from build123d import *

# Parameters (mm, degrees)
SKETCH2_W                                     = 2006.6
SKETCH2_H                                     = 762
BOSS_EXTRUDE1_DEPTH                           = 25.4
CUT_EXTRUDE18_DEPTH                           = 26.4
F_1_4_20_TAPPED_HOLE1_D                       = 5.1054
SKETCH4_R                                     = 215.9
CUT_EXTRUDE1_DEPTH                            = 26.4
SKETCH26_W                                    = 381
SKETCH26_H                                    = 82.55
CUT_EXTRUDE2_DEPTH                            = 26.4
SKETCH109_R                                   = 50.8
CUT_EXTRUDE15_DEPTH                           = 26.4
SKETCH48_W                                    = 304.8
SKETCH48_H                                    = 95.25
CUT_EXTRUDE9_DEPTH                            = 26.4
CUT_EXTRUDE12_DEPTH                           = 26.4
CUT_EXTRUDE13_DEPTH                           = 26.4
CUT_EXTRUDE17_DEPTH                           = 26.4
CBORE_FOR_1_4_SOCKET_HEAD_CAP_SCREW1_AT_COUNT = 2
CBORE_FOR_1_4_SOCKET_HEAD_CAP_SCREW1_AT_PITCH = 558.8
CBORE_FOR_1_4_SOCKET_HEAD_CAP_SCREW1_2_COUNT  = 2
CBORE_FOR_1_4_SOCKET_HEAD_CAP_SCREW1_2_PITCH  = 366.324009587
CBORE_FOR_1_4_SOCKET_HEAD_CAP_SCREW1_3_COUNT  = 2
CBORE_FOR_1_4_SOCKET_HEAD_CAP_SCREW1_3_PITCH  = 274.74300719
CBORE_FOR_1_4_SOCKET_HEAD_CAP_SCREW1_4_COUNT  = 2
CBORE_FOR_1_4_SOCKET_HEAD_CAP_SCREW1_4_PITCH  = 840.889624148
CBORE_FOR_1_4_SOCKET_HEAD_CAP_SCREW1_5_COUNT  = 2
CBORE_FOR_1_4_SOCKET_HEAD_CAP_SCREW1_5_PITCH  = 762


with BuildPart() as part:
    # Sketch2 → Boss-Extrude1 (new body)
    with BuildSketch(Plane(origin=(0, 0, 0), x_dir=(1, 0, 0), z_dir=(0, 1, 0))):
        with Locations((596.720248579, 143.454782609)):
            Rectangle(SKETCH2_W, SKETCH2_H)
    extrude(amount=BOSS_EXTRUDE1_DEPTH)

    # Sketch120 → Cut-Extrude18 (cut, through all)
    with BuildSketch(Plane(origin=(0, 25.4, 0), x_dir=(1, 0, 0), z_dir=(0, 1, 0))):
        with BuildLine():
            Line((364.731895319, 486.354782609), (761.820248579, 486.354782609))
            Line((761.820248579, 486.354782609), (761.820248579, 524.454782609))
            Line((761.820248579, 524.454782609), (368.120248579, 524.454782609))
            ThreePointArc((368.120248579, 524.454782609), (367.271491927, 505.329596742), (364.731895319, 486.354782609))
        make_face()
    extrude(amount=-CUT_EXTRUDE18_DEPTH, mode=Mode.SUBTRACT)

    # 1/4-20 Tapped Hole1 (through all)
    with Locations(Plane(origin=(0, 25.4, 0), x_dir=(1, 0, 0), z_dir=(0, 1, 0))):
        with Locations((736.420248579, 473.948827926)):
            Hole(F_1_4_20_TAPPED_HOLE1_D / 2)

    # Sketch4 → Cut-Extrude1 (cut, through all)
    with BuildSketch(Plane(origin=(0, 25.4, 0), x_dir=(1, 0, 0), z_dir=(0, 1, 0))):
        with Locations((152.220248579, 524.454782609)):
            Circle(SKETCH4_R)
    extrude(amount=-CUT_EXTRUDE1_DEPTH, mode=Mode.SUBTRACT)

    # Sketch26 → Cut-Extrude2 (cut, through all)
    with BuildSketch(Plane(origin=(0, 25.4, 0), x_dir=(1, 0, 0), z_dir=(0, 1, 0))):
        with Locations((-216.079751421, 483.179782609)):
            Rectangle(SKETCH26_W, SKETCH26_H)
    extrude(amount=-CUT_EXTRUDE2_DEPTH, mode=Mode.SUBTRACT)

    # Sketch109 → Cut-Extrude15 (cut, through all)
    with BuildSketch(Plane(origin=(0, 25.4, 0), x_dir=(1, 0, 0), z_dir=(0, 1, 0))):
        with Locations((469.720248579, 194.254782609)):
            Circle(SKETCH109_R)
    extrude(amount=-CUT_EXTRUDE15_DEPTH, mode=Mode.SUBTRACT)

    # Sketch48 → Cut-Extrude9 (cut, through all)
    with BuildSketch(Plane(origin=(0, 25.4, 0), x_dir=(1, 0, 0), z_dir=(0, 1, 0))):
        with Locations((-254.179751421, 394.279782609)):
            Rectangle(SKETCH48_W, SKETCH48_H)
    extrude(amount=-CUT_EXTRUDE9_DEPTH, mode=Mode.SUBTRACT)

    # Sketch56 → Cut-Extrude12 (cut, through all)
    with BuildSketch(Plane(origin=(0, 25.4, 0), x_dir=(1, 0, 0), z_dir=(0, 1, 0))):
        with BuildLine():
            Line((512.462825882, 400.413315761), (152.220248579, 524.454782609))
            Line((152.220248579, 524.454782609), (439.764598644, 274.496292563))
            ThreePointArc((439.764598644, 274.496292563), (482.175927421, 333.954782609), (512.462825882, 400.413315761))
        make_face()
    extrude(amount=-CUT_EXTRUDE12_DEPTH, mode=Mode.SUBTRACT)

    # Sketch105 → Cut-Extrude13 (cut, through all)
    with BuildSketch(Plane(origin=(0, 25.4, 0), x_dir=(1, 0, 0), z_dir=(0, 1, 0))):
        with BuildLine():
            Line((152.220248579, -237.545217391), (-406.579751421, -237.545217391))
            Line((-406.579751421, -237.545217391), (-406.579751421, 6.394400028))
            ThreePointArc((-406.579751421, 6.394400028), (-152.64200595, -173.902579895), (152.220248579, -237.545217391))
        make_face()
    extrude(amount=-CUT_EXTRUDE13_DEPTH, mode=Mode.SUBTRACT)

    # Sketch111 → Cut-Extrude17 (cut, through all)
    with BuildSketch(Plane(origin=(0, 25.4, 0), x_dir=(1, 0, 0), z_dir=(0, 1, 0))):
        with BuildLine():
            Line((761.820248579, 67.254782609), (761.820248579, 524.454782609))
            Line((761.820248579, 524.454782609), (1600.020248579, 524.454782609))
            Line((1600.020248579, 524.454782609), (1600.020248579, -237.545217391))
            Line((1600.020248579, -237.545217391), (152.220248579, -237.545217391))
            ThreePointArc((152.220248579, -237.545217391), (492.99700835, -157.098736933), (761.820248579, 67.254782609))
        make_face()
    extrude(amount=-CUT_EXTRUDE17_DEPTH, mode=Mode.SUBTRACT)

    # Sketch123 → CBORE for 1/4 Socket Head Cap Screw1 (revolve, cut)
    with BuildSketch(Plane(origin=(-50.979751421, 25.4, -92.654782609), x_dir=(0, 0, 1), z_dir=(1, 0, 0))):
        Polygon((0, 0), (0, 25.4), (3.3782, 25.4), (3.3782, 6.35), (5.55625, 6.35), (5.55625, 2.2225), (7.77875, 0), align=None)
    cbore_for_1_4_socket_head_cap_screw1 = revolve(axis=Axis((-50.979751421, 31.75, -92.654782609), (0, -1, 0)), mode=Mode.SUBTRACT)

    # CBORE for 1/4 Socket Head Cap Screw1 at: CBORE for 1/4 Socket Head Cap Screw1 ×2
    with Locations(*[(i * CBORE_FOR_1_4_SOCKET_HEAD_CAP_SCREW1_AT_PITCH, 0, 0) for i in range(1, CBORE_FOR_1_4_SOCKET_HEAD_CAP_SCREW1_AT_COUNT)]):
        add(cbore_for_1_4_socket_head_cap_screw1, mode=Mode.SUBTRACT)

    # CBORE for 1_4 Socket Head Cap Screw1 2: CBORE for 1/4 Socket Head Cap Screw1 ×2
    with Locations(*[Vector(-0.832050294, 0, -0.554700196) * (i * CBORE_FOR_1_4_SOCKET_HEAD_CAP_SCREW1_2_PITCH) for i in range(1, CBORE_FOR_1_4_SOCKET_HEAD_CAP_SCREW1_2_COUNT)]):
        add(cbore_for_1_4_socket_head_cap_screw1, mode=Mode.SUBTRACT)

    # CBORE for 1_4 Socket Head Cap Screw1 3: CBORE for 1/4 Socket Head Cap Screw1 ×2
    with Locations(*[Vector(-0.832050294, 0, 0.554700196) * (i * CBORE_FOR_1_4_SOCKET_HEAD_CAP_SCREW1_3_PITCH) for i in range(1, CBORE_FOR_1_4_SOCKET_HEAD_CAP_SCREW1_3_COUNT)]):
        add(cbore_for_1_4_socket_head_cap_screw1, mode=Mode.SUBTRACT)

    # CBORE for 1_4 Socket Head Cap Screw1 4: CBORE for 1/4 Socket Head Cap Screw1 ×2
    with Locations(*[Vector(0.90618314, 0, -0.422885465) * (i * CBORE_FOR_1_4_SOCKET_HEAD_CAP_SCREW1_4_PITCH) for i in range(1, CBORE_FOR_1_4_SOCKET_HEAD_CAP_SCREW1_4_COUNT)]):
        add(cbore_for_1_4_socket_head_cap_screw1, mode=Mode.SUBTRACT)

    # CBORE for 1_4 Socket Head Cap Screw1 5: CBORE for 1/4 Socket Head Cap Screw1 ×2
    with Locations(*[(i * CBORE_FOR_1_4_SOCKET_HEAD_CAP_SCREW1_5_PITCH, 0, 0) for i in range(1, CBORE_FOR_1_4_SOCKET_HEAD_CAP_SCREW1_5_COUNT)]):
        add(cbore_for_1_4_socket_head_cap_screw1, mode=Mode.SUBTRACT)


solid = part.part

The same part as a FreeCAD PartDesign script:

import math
import FreeCAD as App
import Part
import Sketcher

V = App.Vector
Q = App.Units.Quantity

doc = App.newDocument("Part")
body = doc.addObject("PartDesign::Body", "Body")

# Sketch on XZ plane
sketch1 = body.newObject("Sketcher::SketchObject", "Sketch")
sketch1.AttachmentSupport = (doc.getObject("XZ_Plane"), [""])
sketch1.MapMode = "FlatFace"
sketch1.addGeometry([
    Part.LineSegment(V(-406.579751, -524.454783, 0), V(-406.579751, 237.545217, 0)),
    Part.LineSegment(V(-406.579751, 237.545217, 0), V(1600.020249, 237.545217, 0)),
    Part.LineSegment(V(1600.020249, 237.545217, 0), V(1600.020249, -524.454783, 0)),
    Part.LineSegment(V(1600.020249, -524.454783, 0), V(-406.579751, -524.454783, 0)),
], False)
sketch1.addConstraint([
    Sketcher.Constraint("Coincident", 0, 2, 1, 1),
    Sketcher.Constraint("Coincident", 1, 2, 2, 1),
    Sketcher.Constraint("Coincident", 2, 2, 3, 1),
    Sketcher.Constraint("Coincident", 3, 2, 0, 1),
    Sketcher.Constraint("Vertical", 0),
    Sketcher.Constraint("Horizontal", 1),
    Sketcher.Constraint("Vertical", 2),
    Sketcher.Constraint("Horizontal", 3),
    Sketcher.Constraint("DistanceX", 1, 1, 1, 2, Q("79 in")),
    Sketcher.Constraint("DistanceY", 0, 1, 0, 2, Q("30 in")),
    Sketcher.Constraint("DistanceX", 0, 2, -1, 1, Q("406.579751 mm")),
    Sketcher.Constraint("DistanceY", -1, 1, 0, 2, Q("237.545217 mm")),
])
pad1 = body.newObject("PartDesign::Pad", "Pad")
pad1.Profile = sketch1
pad1.Length = Q("1 in")
pad1.Reversed = True

# Sketch on XZ plane
sketch2 = body.newObject("Sketcher::SketchObject", "Sketch001")
sketch2.AttachmentSupport = (doc.getObject("XZ_Plane"), [""])
sketch2.MapMode = "FlatFace"
sketch2.AttachmentOffset = App.Placement(V(0, 0, -1 * 25.4), App.Rotation())
sketch2.addGeometry([
    Part.LineSegment(V(364.731895, -486.354783, 0), V(761.820249, -486.354783, 0)),
    Part.LineSegment(V(761.820249, -486.354783, 0), V(761.820249, -524.454783, 0)),
    Part.LineSegment(V(761.820249, -524.454783, 0), V(368.120249, -524.454783, 0)),
    Part.ArcOfCircle(Part.Circle(V(152.220249, -524.454783, 0), V(0, 0, 1), 215.9), math.radians(0), math.radians(10.164249)),
], False)
sketch2.addConstraint([
    Sketcher.Constraint("Coincident", 0, 2, 1, 1),
    Sketcher.Constraint("Coincident", 1, 2, 2, 1),
    Sketcher.Constraint("Coincident", 2, 2, 3, 1),
    Sketcher.Constraint("Coincident", 3, 2, 0, 1),
    Sketcher.Constraint("Horizontal", 0),
    Sketcher.Constraint("Vertical", 1),
    Sketcher.Constraint("Horizontal", 2),
    Sketcher.Constraint("Horizontal", 3, 3, 1, 2),
    Sketcher.Constraint("Radius", 3, Q("8.5 in")),
    Sketcher.Constraint("DistanceX", 2, 2, 2, 1, Q("15.5 in")),
    Sketcher.Constraint("DistanceY", 1, 2, 1, 1, Q("1.5 in")),
    Sketcher.Constraint("DistanceX", -1, 1, 3, 3, Q("152.220249 mm")),
    Sketcher.Constraint("DistanceY", 3, 3, -1, 1, Q("524.454783 mm")),
])
pocket1 = body.newObject("PartDesign::Pocket", "Pocket")
pocket1.Profile = sketch2
pocket1.Type = "ThroughAll"
pocket1.Reversed = True

# Sketch on XZ plane
sketch3 = body.newObject("Sketcher::SketchObject", "Sketch002")
sketch3.AttachmentSupport = (doc.getObject("XZ_Plane"), [""])
sketch3.MapMode = "FlatFace"
sketch3.AttachmentOffset = App.Placement(V(0, 0, -1 * 25.4), App.Rotation())
sketch3.addGeometry(Part.Circle(V(736.420249, -473.948828, 0), V(0, 0, 1), 2.5527), False)
sketch3.addConstraint([
    Sketcher.Constraint("Diameter", 0, Q("0.201 in")),
    Sketcher.Constraint("DistanceX", -1, 1, 0, 3, Q("736.420249 mm")),
    Sketcher.Constraint("DistanceY", 0, 3, -1, 1, Q("473.948828 mm")),
])
doc.recompute()
hole = body.newObject("PartDesign::Hole", "Hole")
hole.Profile = sketch3
hole.ThreadType = "None"
hole.Diameter = Q("0.201 in")
hole.DepthType = "ThroughAll"
hole.Reversed = True

# Sketch on XZ plane
sketch4 = body.newObject("Sketcher::SketchObject", "Sketch003")
sketch4.AttachmentSupport = (doc.getObject("XZ_Plane"), [""])
sketch4.MapMode = "FlatFace"
sketch4.AttachmentOffset = App.Placement(V(0, 0, -1 * 25.4), App.Rotation())
sketch4.addGeometry(Part.Circle(V(152.220249, -524.454783, 0), V(0, 0, 1), 215.9), False)
sketch4.addConstraint([
    Sketcher.Constraint("Diameter", 0, Q("17 in")),
    Sketcher.Constraint("DistanceX", -1, 1, 0, 3, Q("152.220249 mm")),
    Sketcher.Constraint("DistanceY", 0, 3, -1, 1, Q("524.454783 mm")),
])
pocket2 = body.newObject("PartDesign::Pocket", "Pocket001")
pocket2.Profile = sketch4
pocket2.Type = "ThroughAll"
pocket2.Reversed = True

# Sketch on XZ plane
sketch5 = body.newObject("Sketcher::SketchObject", "Sketch004")
sketch5.AttachmentSupport = (doc.getObject("XZ_Plane"), [""])
sketch5.MapMode = "FlatFace"
sketch5.AttachmentOffset = App.Placement(V(0, 0, -1 * 25.4), App.Rotation())
sketch5.addGeometry([
    Part.LineSegment(V(-406.579751, -524.454783, 0), V(-406.579751, -441.904783, 0)),
    Part.LineSegment(V(-406.579751, -441.904783, 0), V(-25.579751, -441.904783, 0)),
    Part.LineSegment(V(-25.579751, -441.904783, 0), V(-25.579751, -524.454783, 0)),
    Part.LineSegment(V(-25.579751, -524.454783, 0), V(-406.579751, -524.454783, 0)),
], False)
sketch5.addConstraint([
    Sketcher.Constraint("Coincident", 0, 2, 1, 1),
    Sketcher.Constraint("Coincident", 1, 2, 2, 1),
    Sketcher.Constraint("Coincident", 2, 2, 3, 1),
    Sketcher.Constraint("Coincident", 3, 2, 0, 1),
    Sketcher.Constraint("Vertical", 0),
    Sketcher.Constraint("Horizontal", 1),
    Sketcher.Constraint("Vertical", 2),
    Sketcher.Constraint("Horizontal", 3),
    Sketcher.Constraint("DistanceX", 1, 1, 1, 2, Q("15 in")),
    Sketcher.Constraint("DistanceY", 0, 1, 0, 2, Q("3.25 in")),
    Sketcher.Constraint("DistanceX", 0, 2, -1, 1, Q("406.579751 mm")),
    Sketcher.Constraint("DistanceY", 0, 2, -1, 1, Q("441.904783 mm")),
])
pocket3 = body.newObject("PartDesign::Pocket", "Pocket002")
pocket3.Profile = sketch5
pocket3.Type = "ThroughAll"
pocket3.Reversed = True

# Sketch on XZ plane
sketch6 = body.newObject("Sketcher::SketchObject", "Sketch005")
sketch6.AttachmentSupport = (doc.getObject("XZ_Plane"), [""])
sketch6.MapMode = "FlatFace"
sketch6.AttachmentOffset = App.Placement(V(0, 0, -1 * 25.4), App.Rotation())
sketch6.addGeometry(Part.Circle(V(469.720249, -194.254783, 0), V(0, 0, 1), 50.8), False)
sketch6.addConstraint([
    Sketcher.Constraint("Diameter", 0, Q("4 in")),
    Sketcher.Constraint("DistanceX", -1, 1, 0, 3, Q("469.720249 mm")),
    Sketcher.Constraint("DistanceY", 0, 3, -1, 1, Q("194.254783 mm")),
])
pocket4 = body.newObject("PartDesign::Pocket", "Pocket003")
pocket4.Profile = sketch6
pocket4.Type = "ThroughAll"
pocket4.Reversed = True

# Sketch on XZ plane
sketch7 = body.newObject("Sketcher::SketchObject", "Sketch006")
sketch7.AttachmentSupport = (doc.getObject("XZ_Plane"), [""])
sketch7.MapMode = "FlatFace"
sketch7.AttachmentOffset = App.Placement(V(0, 0, -1 * 25.4), App.Rotation())
sketch7.addGeometry([
    Part.LineSegment(V(-406.579751, -441.904783, 0), V(-406.579751, -346.654783, 0)),
    Part.LineSegment(V(-406.579751, -346.654783, 0), V(-101.779751, -346.654783, 0)),
    Part.LineSegment(V(-101.779751, -346.654783, 0), V(-101.779751, -441.904783, 0)),
    Part.LineSegment(V(-101.779751, -441.904783, 0), V(-406.579751, -441.904783, 0)),
], False)
sketch7.addConstraint([
    Sketcher.Constraint("Coincident", 0, 2, 1, 1),
    Sketcher.Constraint("Coincident", 1, 2, 2, 1),
    Sketcher.Constraint("Coincident", 2, 2, 3, 1),
    Sketcher.Constraint("Coincident", 3, 2, 0, 1),
    Sketcher.Constraint("Vertical", 0),
    Sketcher.Constraint("Horizontal", 1),
    Sketcher.Constraint("Vertical", 2),
    Sketcher.Constraint("Horizontal", 3),
    Sketcher.Constraint("DistanceX", 1, 1, 1, 2, Q("12 in")),
    Sketcher.Constraint("DistanceY", 0, 1, 0, 2, Q("3.75 in")),
    Sketcher.Constraint("DistanceX", 0, 2, -1, 1, Q("406.579751 mm")),
    Sketcher.Constraint("DistanceY", 0, 2, -1, 1, Q("346.654783 mm")),
])
pocket5 = body.newObject("PartDesign::Pocket", "Pocket004")
pocket5.Profile = sketch7
pocket5.Type = "ThroughAll"
pocket5.Reversed = True

# Sketch on XZ plane
sketch8 = body.newObject("Sketcher::SketchObject", "Sketch007")
sketch8.AttachmentSupport = (doc.getObject("XZ_Plane"), [""])
sketch8.MapMode = "FlatFace"
sketch8.AttachmentOffset = App.Placement(V(0, 0, -1 * 25.4), App.Rotation())
sketch8.addGeometry([
    Part.LineSegment(V(512.462826, -400.413316, 0), V(152.220249, -524.454783, 0)),
    Part.LineSegment(V(152.220249, -524.454783, 0), V(439.764599, -274.496293, 0)),
    Part.ArcOfCircle(Part.Circle(V(152.220249, -524.454783, 0), V(0, 0, 1), 381), math.radians(19), math.radians(41)),
], False)
sketch8.addConstraint([
    Sketcher.Constraint("Coincident", 0, 2, 1, 1),
    Sketcher.Constraint("Coincident", 1, 2, 2, 2),
    Sketcher.Constraint("Coincident", 2, 1, 0, 1),
    Sketcher.Constraint("Coincident", 0, 2, 2, 3),
    Sketcher.Constraint("Radius", 2, Q("15 in")),
    Sketcher.Constraint("Angle", 0, Q("-161 deg")),
    Sketcher.Constraint("Angle", 1, Q("41 deg")),
    Sketcher.Constraint("DistanceX", -1, 1, 1, 2, Q("439.764599 mm")),
    Sketcher.Constraint("DistanceY", 2, 3, -1, 1, Q("524.454783 mm")),
])
pocket6 = body.newObject("PartDesign::Pocket", "Pocket005")
pocket6.Profile = sketch8
pocket6.Type = "ThroughAll"
pocket6.Reversed = True

# Sketch on XZ plane
sketch9 = body.newObject("Sketcher::SketchObject", "Sketch008")
sketch9.AttachmentSupport = (doc.getObject("XZ_Plane"), [""])
sketch9.MapMode = "FlatFace"
sketch9.AttachmentOffset = App.Placement(V(0, 0, -1 * 25.4), App.Rotation())
sketch9.addGeometry([
    Part.LineSegment(V(-406.579751, 237.545217, 0), V(152.220249, 237.545217, 0)),
    Part.ArcOfCircle(Part.Circle(V(152.220249, -524.454783, 0), V(0, 0, 1), 762), math.radians(90), math.radians(137.166572)),
    Part.LineSegment(V(-406.579751, -6.3944, 0), V(-406.579751, 237.545217, 0)),
], False)
sketch9.addConstraint([
    Sketcher.Constraint("Tangent", 0, 2, 1, 1),
    Sketcher.Constraint("Coincident", 1, 2, 2, 1),
    Sketcher.Constraint("Coincident", 2, 2, 0, 1),
    Sketcher.Constraint("Horizontal", 0),
    Sketcher.Constraint("Vertical", 2),
    Sketcher.Constraint("Radius", 1, Q("30 in")),
    Sketcher.Constraint("DistanceX", 0, 1, 0, 2, Q("22 in")),
    Sketcher.Constraint("DistanceX", -1, 1, 1, 3, Q("152.220249 mm")),
    Sketcher.Constraint("DistanceY", 1, 3, -1, 1, Q("524.454783 mm")),
])
pocket7 = body.newObject("PartDesign::Pocket", "Pocket006")
pocket7.Profile = sketch9
pocket7.Type = "ThroughAll"
pocket7.Reversed = True

# Sketch on XZ plane
sketch10 = body.newObject("Sketcher::SketchObject", "Sketch009")
sketch10.AttachmentSupport = (doc.getObject("XZ_Plane"), [""])
sketch10.MapMode = "FlatFace"
sketch10.AttachmentOffset = App.Placement(V(0, 0, -1 * 25.4), App.Rotation())
sketch10.addGeometry([
    Part.LineSegment(V(761.820249, -524.454783, 0), V(761.820249, -67.254783, 0)),  # 0
    Part.ArcOfCircle(Part.Circle(V(152.220249, -524.454783, 0), V(0, 0, 1), 762), math.radians(36.869898), math.radians(90)),  # 1
    Part.LineSegment(V(152.220249, 237.545217, 0), V(1600.020249, 237.545217, 0)),  # 2
    Part.LineSegment(V(1600.020249, 237.545217, 0), V(1600.020249, -524.454783, 0)),  # 3
    Part.LineSegment(V(1600.020249, -524.454783, 0), V(761.820249, -524.454783, 0)),  # 4
], False)
sketch10.addConstraint([
    Sketcher.Constraint("Coincident", 0, 2, 1, 1),
    Sketcher.Constraint("Coincident", 1, 2, 2, 1),
    Sketcher.Constraint("Coincident", 2, 2, 3, 1),
    Sketcher.Constraint("Coincident", 3, 2, 4, 1),
    Sketcher.Constraint("Coincident", 4, 2, 0, 1),
    Sketcher.Constraint("Vertical", 0),
    Sketcher.Constraint("Horizontal", 2),
    Sketcher.Constraint("Vertical", 3),
    Sketcher.Constraint("Horizontal", 4),
    Sketcher.Constraint("Horizontal", 1, 3, 3, 2),
    Sketcher.Constraint("Radius", 1, Q("30 in")),
    Sketcher.Constraint("DistanceX", 2, 1, 2, 2, Q("57 in")),
    Sketcher.Constraint("DistanceX", 4, 2, 4, 1, Q("33 in")),
    Sketcher.Constraint("DistanceY", 0, 1, 0, 2, Q("18 in")),
    Sketcher.Constraint("DistanceX", -1, 1, 1, 3, Q("152.220249 mm")),
    Sketcher.Constraint("DistanceY", 1, 3, -1, 1, Q("524.454783 mm")),
])
pocket8 = body.newObject("PartDesign::Pocket", "Pocket007")
pocket8.Profile = sketch10
pocket8.Type = "ThroughAll"
pocket8.Reversed = True

# Sketch on YZ plane
sketch11 = body.newObject("Sketcher::SketchObject", "Sketch010")
sketch11.AttachmentSupport = (doc.getObject("YZ_Plane"), [""])
sketch11.MapMode = "FlatFace"
sketch11.AttachmentOffset = App.Placement(V(0, 0, -50.979751), App.Rotation())
sketch11.addGeometry([
    Part.LineSegment(V(0, -92.654783, 0), V(25.4, -92.654783, 0)),  # 0
    Part.LineSegment(V(25.4, -92.654783, 0), V(25.4, -84.876033, 0)),  # 1
    Part.LineSegment(V(25.4, -84.876033, 0), V(23.1775, -87.098533, 0)),  # 2
    Part.LineSegment(V(23.1775, -87.098533, 0), V(19.05, -87.098533, 0)),  # 3
    Part.LineSegment(V(19.05, -87.098533, 0), V(19.05, -89.276583, 0)),  # 4
    Part.LineSegment(V(19.05, -89.276583, 0), V(0, -89.276583, 0)),  # 5
    Part.LineSegment(V(0, -89.276583, 0), V(0, -92.654783, 0)),  # 6
], False)
sketch11.addGeometry(Part.LineSegment(V(25.4, -92.654783, 0), V(0, -92.654783, 0)), True)  # axis
sketch11.addConstraint([
    Sketcher.Constraint("Coincident", 0, 2, 1, 1),
    Sketcher.Constraint("Coincident", 1, 2, 2, 1),
    Sketcher.Constraint("Coincident", 2, 2, 3, 1),
    Sketcher.Constraint("Coincident", 3, 2, 4, 1),
    Sketcher.Constraint("Coincident", 4, 2, 5, 1),
    Sketcher.Constraint("Coincident", 5, 2, 6, 1),
    Sketcher.Constraint("Coincident", 6, 2, 0, 1),
    Sketcher.Constraint("Horizontal", 0),
    Sketcher.Constraint("Vertical", 1),
    Sketcher.Constraint("Horizontal", 3),
    Sketcher.Constraint("Vertical", 4),
    Sketcher.Constraint("Horizontal", 5),
    Sketcher.Constraint("Vertical", 6),
    Sketcher.Constraint("Horizontal", 7),
    Sketcher.Constraint("Coincident", 7, 1, 0, 2),
    Sketcher.Constraint("PointOnObject", 5, 2, -2),
    Sketcher.Constraint("PointOnObject", 7, 2, -2),
    Sketcher.Constraint("DistanceX", 0, 1, 0, 2, Q("1 in")),
    Sketcher.Constraint("Angle", 2, Q("-135 deg")),
    Sketcher.Constraint("DistanceX", 5, 2, 5, 1, Q("0.75 in")),
    Sketcher.Constraint("DistanceY", 6, 2, 6, 1, Q("0.133 in")),
    Sketcher.Constraint("DistanceX", 3, 2, 3, 1, Q("0.1625 in")),
    Sketcher.Constraint("DistanceY", 0, 2, 2, 2, Q("0.21875 in")),
    Sketcher.Constraint("DistanceY", 0, 2, -1, 1, Q("92.654783 mm")),
])
groove = body.newObject("PartDesign::Groove", "Groove")
groove.Profile = sketch11
groove.ReferenceAxis = (sketch11, ["Axis0"])
groove.Angle = 360
doc.recompute()

linearpattern = body.newObject("PartDesign::LinearPattern", "LinearPattern")
linearpattern.Originals = [groove]
linearpattern.Direction = (doc.getObject("X_Axis"), [""])
linearpattern.Mode = "offset"
linearpattern.Offset = Q("22 in")
linearpattern.Occurrences = 2
body.Tip = linearpattern
doc.recompute()

datumline = body.newObject("PartDesign::Line", "DatumLine")
datumline.Placement = App.Placement(V(0, 0, 0), App.Rotation(V(0, 0, 1), V(-0.832050294, 0, -0.554700196)))
linearpattern2 = body.newObject("PartDesign::LinearPattern", "LinearPattern001")
linearpattern2.Originals = [groove]
linearpattern2.Direction = (datumline, [""])
linearpattern2.Mode = "offset"
linearpattern2.Offset = 366.324009
linearpattern2.Occurrences = 2
body.Tip = linearpattern2
doc.recompute()

datumline2 = body.newObject("PartDesign::Line", "DatumLine001")
datumline2.Placement = App.Placement(V(0, 0, 0), App.Rotation(V(0, 0, 1), V(-0.832050294, 0, 0.554700196)))
linearpattern3 = body.newObject("PartDesign::LinearPattern", "LinearPattern002")
linearpattern3.Originals = [groove]
linearpattern3.Direction = (datumline2, [""])
linearpattern3.Mode = "offset"
linearpattern3.Offset = 274.743007
linearpattern3.Occurrences = 2
body.Tip = linearpattern3
doc.recompute()

datumline3 = body.newObject("PartDesign::Line", "DatumLine002")
datumline3.Placement = App.Placement(V(0, 0, 0), App.Rotation(V(0, 0, 1), V(0.90618314, 0, -0.422885465)))
linearpattern4 = body.newObject("PartDesign::LinearPattern", "LinearPattern003")
linearpattern4.Originals = [groove]
linearpattern4.Direction = (datumline3, [""])
linearpattern4.Mode = "offset"
linearpattern4.Offset = 840.889624
linearpattern4.Occurrences = 2
body.Tip = linearpattern4
doc.recompute()

linearpattern5 = body.newObject("PartDesign::LinearPattern", "LinearPattern004")
linearpattern5.Originals = [groove]
linearpattern5.Direction = (doc.getObject("X_Axis"), [""])
linearpattern5.Mode = "offset"
linearpattern5.Offset = Q("30 in")
linearpattern5.Occurrences = 2
body.Tip = linearpattern5

doc.recompute()
